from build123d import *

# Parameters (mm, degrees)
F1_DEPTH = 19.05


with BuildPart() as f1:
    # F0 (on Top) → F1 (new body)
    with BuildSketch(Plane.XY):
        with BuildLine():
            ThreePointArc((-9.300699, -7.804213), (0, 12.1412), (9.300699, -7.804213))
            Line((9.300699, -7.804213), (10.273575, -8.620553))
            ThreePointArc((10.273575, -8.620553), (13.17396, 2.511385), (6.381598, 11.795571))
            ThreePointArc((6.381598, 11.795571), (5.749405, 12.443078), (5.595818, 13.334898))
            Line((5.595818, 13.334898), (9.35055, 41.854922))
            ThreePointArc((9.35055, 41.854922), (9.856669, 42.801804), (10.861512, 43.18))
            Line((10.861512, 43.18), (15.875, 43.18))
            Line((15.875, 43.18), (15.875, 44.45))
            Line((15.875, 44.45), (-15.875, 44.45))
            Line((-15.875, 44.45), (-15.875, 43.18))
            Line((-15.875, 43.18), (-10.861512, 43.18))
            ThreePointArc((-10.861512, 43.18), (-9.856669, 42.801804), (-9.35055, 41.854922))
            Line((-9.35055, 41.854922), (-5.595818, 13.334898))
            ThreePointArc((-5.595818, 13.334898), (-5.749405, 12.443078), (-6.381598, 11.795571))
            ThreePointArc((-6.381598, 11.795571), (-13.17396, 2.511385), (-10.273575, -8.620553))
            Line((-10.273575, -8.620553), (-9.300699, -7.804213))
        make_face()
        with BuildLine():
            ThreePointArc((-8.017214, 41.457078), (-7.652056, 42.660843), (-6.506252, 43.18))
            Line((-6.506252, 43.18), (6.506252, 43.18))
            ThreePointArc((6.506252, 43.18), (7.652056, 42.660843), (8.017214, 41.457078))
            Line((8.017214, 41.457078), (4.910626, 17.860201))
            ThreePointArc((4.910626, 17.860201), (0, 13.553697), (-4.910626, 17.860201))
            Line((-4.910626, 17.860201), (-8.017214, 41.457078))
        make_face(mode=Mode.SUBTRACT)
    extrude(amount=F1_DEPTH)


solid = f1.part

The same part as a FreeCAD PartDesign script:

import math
import FreeCAD as App
import Part
import Sketcher
from FreeCAD import Vector
Q = App.Units.Quantity

doc = App.newDocument("Part")
body = doc.addObject("PartDesign::Body", "Body")

sketch1 = body.newObject("Sketcher::SketchObject", "Sketch")
sketch1.AttachmentSupport = (doc.getObject("XY_Plane"), [""])
sketch1.MapMode = "FlatFace"
sketch1.addGeometry([
    Part.ArcOfCircle(Part.Circle(Vector(0, 0, 0), Vector(0, 0, 1), 12.1), math.radians(-40), math.radians(220)),
    Part.LineSegment(Vector(9.3, -7.8, 0), Vector(10.3, -8.6, 0)),
    Part.ArcOfCircle(Part.Circle(Vector(0, 0, 0), Vector(0, 0, 1), 13.4), math.radians(-40), math.radians(62)),
    Part.ArcOfCircle(Part.Circle(Vector(7.1, 13.1, 0), Vector(0, 0, 1), 1.5), math.radians(173), math.radians(242)),
    Part.LineSegment(Vector(5.6, 13.3, 0), Vector(9.4, 41.9, 0)),
    Part.ArcOfCircle(Part.Circle(Vector(10.9, 41.7, 0), Vector(0, 0, 1), 1.5), math.radians(90), math.radians(173)),
    Part.LineSegment(Vector(10.9, 43.2, 0), Vector(15.9, 43.2, 0)),
    Part.LineSegment(Vector(15.9, 43.2, 0), Vector(15.9, 44.5, 0)),
    Part.LineSegment(Vector(15.9, 44.5, 0), Vector(-15.9, 44.5, 0)),
    Part.LineSegment(Vector(-15.9, 44.5, 0), Vector(-15.9, 43.2, 0)),
    Part.LineSegment(Vector(-15.9, 43.2, 0), Vector(-10.9, 43.2, 0)),
    Part.ArcOfCircle(Part.Circle(Vector(-10.9, 41.7, 0), Vector(0, 0, 1), 1.5), math.radians(7), math.radians(90)),
    Part.LineSegment(Vector(-9.4, 41.9, 0), Vector(-5.6, 13.3, 0)),
    Part.ArcOfCircle(Part.Circle(Vector(-7.1, 13.1, 0), Vector(0, 0, 1), 1.5), math.radians(-62), math.radians(7)),
    Part.ArcOfCircle(Part.Circle(Vector(0, 0, 0), Vector(0, 0, 1), 13.4), math.radians(118), math.radians(220)),
    Part.LineSegment(Vector(-10.3, -8.6, 0), Vector(-9.3, -7.8, 0)),
    Part.LineSegment(Vector(-4.9, 17.9, 0), Vector(-8, 41.5, 0)),
    Part.ArcOfCircle(Part.Circle(Vector(-6.5, 41.7, 0), Vector(0, 0, 1), 1.5), math.radians(90), math.radians(188)),
    Part.LineSegment(Vector(-6.5, 43.2, 0), Vector(6.5, 43.2, 0)),
    Part.ArcOfCircle(Part.Circle(Vector(6.5, 41.7, 0), Vector(0, 0, 1), 1.5), math.radians(-8), math.radians(90)),
    Part.LineSegment(Vector(8, 41.5, 0), Vector(4.9, 17.9, 0)),
    Part.ArcOfCircle(Part.Circle(Vector(0, 18.5, 0), Vector(0, 0, 1), 5), math.radians(-173), math.radians(-7)),
], False)
sketch1.addConstraint([
    Sketcher.Constraint("Coincident", 0, 1, 1, 1),
    Sketcher.Constraint("Coincident", 1, 2, 2, 1),
    Sketcher.Constraint("Tangent", 2, 2, 3, 2),
    Sketcher.Constraint("Tangent", 3, 1, 4, 1),
    Sketcher.Constraint("Tangent", 4, 2, 5, 2),
    Sketcher.Constraint("Tangent", 5, 1, 6, 1),
    Sketcher.Constraint("Coincident", 6, 2, 7, 1),
    Sketcher.Constraint("Coincident", 7, 2, 8, 1),
    Sketcher.Constraint("Coincident", 8, 2, 9, 1),
    Sketcher.Constraint("Coincident", 9, 2, 10, 1),
    Sketcher.Constraint("Tangent", 10, 2, 11, 2),
    Sketcher.Constraint("Tangent", 11, 1, 12, 1),
    Sketcher.Constraint("Tangent", 12, 2, 13, 2),
    Sketcher.Constraint("Tangent", 13, 1, 14, 1),
    Sketcher.Constraint("Coincident", 14, 2, 15, 1),
    Sketcher.Constraint("Coincident", 15, 2, 0, 2),
    Sketcher.Constraint("Tangent", 16, 2, 17, 2),
    Sketcher.Constraint("Tangent", 17, 1, 18, 1),
    Sketcher.Constraint("Tangent", 18, 2, 19, 2),
    Sketcher.Constraint("Tangent", 19, 1, 20, 1),
    Sketcher.Constraint("Tangent", 20, 2, 21, 2),
    Sketcher.Constraint("Tangent", 21, 1, 16, 1),
    Sketcher.Constraint("Horizontal", 6),
    Sketcher.Constraint("Vertical", 7),
    Sketcher.Constraint("Horizontal", 8),
    Sketcher.Constraint("Vertical", 9),
    Sketcher.Constraint("Horizontal", 10),
    Sketcher.Constraint("Horizontal", 18),
    Sketcher.Constraint("Coincident", 0, 3, -1, 1),
    Sketcher.Constraint("Coincident", 2, 3, -1, 1),
    Sketcher.Constraint("Coincident", 14, 3, -1, 1),
    Sketcher.Constraint("Equal", 3, 5),
    Sketcher.Constraint("Equal", 5, 11),
    Sketcher.Constraint("Equal", 11, 13),
    Sketcher.Constraint("Equal", 2, 14),
    Sketcher.Constraint("Equal", 13, 17),
    Sketcher.Constraint("Equal", 17, 19),
    Sketcher.Constraint("Symmetric", 5, 3, 11, 3, -2),
    Sketcher.Constraint("Symmetric", 16, 2, 19, 1, -2),
    Sketcher.Constraint("Parallel", 12, 16),
    Sketcher.Constraint("Parallel", 4, 20),
    Sketcher.Constraint("Horizontal", 11, 3, 17, 3),
    Sketcher.Constraint("Horizontal", 1, 2, 14, 2),
    Sketcher.Constraint("Horizontal", 0, 1, 15, 2),
    Sketcher.Constraint("Equal", 6, 10),
    Sketcher.Constraint("Radius", 3, Q("0.06 in")),
    Sketcher.Constraint("Angle", 1, Q("-40.000004 deg")),
    Sketcher.Constraint("Radius", 0, Q("0.478 in")),
    Sketcher.Constraint("Radius", 2, Q("0.528 in")),
    Sketcher.Constraint("Radius", 21, Q("0.195 in")),
    Sketcher.Constraint("DistanceX", 8, 2, 8, 1, Q("1.25 in")),
    Sketcher.Constraint("DistanceY", 7, 1, 7, 2, Q("0.05 in")),
    Sketcher.Constraint("DistanceY", -1, 1, 5, 1, Q("1.7 in")),
    Sketcher.Constraint("Angle", 4, Q("82.500001 deg")),
    Sketcher.Constraint("DistanceX", 6, 1, 6, 2, 5.013488),
    Sketcher.Constraint("DistanceX", -1, 1, 0, 1, 9.300699),
    Sketcher.Constraint("DistanceY", -1, 1, 20, 2, 17.860201),
])
pad1 = body.newObject("PartDesign::Pad", "Pad")
pad1.Profile = sketch1
pad1.Length = Q("0.75 in")

doc.recompute()
